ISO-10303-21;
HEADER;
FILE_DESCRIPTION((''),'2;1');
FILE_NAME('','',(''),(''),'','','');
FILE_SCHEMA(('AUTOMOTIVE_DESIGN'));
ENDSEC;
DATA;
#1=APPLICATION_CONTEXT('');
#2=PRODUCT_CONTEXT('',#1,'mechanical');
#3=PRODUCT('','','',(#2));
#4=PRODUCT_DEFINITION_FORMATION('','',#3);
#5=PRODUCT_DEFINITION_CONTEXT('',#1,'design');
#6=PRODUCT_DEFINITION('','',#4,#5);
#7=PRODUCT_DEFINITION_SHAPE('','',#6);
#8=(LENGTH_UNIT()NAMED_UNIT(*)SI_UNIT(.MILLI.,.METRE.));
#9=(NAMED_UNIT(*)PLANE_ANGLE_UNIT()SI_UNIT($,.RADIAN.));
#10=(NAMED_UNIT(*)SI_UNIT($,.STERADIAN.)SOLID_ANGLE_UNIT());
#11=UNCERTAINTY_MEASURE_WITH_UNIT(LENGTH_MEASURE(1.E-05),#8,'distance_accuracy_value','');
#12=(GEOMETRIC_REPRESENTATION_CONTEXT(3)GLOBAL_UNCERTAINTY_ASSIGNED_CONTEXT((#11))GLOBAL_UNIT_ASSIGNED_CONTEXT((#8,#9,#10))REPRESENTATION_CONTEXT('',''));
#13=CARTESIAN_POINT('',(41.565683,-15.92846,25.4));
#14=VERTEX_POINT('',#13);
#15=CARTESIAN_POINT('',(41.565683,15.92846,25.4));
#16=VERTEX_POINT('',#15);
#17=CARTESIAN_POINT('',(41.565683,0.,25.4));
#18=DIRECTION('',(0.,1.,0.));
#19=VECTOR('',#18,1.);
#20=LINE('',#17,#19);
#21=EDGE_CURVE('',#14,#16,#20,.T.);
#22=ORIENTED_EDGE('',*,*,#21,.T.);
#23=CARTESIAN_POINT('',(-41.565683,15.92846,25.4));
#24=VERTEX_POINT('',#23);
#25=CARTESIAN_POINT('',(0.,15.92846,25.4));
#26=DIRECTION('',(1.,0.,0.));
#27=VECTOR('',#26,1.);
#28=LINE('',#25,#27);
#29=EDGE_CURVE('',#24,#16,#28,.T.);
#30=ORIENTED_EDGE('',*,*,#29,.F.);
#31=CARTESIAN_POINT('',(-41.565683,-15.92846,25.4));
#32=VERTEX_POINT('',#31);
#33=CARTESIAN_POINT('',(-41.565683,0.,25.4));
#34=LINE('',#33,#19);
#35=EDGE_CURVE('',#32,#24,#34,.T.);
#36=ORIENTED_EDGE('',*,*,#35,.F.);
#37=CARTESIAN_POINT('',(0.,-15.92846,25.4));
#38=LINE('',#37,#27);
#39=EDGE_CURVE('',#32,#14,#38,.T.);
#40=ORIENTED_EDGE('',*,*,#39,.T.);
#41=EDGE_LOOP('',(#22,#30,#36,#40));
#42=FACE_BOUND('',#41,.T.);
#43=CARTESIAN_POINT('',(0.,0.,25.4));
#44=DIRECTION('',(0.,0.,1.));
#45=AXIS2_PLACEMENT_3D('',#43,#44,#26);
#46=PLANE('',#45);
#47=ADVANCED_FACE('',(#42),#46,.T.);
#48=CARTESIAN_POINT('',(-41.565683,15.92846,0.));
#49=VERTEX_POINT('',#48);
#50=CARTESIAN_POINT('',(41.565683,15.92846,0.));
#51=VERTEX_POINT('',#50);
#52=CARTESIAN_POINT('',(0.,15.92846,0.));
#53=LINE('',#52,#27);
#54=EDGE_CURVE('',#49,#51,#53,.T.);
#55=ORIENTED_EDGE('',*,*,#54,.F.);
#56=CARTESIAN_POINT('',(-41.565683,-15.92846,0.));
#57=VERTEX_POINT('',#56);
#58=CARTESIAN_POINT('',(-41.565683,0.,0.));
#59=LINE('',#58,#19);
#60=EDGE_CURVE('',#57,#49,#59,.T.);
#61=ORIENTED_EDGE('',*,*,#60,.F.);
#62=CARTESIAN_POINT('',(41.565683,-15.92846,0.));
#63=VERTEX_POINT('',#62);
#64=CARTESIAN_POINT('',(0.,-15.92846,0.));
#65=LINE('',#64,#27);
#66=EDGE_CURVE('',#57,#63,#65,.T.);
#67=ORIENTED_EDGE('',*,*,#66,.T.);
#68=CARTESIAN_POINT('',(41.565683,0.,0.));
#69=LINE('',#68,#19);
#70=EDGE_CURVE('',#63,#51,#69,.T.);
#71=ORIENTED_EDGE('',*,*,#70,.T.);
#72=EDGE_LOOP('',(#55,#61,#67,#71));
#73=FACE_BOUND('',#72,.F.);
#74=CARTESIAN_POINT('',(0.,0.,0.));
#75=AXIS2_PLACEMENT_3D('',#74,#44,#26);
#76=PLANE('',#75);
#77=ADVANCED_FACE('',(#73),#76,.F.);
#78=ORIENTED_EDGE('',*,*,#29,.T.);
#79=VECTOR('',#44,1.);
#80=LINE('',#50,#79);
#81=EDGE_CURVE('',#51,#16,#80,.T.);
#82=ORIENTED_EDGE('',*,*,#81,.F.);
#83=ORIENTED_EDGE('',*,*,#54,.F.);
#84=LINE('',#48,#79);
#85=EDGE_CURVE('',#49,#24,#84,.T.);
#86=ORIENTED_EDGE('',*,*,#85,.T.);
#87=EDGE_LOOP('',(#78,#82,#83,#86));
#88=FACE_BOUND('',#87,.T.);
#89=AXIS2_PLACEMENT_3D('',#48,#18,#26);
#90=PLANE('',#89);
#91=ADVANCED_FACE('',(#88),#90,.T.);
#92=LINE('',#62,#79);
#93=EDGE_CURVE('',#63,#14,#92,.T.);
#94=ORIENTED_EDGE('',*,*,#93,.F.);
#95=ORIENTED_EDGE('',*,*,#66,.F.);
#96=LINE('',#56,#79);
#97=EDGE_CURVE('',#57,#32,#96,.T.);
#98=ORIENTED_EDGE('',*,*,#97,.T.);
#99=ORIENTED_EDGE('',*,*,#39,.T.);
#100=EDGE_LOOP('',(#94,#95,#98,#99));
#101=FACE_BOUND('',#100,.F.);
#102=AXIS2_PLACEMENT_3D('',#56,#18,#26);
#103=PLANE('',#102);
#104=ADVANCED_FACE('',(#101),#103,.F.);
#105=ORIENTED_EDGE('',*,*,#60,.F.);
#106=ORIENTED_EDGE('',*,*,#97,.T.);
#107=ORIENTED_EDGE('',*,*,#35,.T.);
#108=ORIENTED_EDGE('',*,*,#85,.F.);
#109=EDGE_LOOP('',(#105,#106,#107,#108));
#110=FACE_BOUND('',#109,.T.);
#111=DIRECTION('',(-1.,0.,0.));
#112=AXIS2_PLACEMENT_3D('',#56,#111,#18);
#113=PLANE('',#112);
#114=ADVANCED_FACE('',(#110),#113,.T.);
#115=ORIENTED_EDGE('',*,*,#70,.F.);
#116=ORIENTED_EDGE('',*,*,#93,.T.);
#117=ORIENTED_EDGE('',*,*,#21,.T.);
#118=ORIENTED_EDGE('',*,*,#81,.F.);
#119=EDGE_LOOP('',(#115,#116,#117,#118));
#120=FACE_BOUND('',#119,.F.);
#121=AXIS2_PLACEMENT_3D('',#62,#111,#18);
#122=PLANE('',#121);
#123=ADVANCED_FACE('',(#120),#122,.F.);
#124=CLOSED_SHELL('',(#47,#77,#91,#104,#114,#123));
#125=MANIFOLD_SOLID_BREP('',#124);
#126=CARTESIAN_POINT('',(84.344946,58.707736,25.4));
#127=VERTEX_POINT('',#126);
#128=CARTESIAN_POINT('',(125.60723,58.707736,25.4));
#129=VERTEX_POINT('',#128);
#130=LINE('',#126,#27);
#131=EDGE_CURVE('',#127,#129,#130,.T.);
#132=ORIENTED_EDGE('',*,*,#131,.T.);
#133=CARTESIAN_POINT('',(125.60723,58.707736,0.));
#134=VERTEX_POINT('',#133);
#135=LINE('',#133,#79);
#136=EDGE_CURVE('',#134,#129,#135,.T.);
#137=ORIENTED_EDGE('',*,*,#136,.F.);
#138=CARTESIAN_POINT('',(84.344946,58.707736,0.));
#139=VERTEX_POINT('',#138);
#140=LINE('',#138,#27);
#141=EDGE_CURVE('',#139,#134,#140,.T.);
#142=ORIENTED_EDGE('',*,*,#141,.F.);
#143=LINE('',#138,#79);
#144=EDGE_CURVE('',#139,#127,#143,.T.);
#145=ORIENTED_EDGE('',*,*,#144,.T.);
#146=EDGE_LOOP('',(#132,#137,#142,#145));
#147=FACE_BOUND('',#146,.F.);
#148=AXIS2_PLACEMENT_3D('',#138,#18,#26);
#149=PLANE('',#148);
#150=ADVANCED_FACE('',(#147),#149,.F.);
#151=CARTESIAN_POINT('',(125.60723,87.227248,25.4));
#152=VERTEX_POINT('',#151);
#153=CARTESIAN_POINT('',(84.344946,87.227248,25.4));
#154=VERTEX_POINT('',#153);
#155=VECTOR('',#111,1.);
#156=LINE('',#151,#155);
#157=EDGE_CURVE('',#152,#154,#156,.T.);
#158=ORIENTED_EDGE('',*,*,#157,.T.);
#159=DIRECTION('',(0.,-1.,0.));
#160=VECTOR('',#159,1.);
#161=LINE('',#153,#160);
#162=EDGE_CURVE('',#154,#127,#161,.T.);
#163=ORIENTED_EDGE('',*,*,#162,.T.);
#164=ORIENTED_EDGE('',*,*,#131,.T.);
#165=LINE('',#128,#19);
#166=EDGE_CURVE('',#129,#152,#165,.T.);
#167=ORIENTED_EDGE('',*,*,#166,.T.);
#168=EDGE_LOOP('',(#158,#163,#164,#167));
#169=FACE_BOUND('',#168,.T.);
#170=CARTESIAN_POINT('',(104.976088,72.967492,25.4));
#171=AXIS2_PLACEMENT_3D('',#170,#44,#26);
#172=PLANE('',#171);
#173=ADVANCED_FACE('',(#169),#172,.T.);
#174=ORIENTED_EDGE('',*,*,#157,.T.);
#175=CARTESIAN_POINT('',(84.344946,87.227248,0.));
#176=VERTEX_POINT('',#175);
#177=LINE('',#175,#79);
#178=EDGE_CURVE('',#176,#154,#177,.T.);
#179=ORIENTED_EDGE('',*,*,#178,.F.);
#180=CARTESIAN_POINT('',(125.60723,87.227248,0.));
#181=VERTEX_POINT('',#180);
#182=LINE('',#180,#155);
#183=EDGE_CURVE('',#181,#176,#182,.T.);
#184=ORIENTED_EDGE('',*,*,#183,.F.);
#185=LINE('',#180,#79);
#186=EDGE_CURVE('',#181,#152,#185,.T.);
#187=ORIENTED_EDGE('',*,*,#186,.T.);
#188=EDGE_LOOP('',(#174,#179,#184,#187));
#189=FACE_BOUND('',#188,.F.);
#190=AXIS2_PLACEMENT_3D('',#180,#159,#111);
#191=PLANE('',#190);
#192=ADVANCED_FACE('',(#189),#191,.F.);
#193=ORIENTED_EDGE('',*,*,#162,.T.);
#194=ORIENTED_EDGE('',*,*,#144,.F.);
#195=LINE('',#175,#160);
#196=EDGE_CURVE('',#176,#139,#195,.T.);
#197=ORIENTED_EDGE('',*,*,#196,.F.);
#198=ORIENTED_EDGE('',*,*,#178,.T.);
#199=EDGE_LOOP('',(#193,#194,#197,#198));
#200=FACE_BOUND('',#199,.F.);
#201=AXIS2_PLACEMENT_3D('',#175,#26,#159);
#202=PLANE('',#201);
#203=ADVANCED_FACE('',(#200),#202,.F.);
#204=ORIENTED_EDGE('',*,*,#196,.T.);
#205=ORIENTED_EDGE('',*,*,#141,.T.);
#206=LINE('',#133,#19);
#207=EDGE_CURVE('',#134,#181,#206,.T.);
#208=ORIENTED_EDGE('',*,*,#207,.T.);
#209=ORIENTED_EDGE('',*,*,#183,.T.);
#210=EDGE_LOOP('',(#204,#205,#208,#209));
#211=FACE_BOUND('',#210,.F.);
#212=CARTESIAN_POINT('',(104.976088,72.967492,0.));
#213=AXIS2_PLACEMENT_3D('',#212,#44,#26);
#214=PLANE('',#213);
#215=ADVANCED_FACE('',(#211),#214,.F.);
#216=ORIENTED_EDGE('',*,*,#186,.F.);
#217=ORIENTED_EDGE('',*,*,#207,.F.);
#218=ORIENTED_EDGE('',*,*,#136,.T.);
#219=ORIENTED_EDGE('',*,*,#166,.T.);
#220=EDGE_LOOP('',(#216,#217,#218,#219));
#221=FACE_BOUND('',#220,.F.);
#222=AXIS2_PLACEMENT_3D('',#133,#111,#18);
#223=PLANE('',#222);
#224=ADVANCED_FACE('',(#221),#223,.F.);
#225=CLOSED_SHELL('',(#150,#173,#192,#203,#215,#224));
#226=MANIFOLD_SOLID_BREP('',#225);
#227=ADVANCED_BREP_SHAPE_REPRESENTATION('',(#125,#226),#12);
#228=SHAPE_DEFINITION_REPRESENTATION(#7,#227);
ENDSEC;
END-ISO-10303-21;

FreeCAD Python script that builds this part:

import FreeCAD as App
import Part
import Sketcher

V = App.Vector
Q = App.Units.Quantity

doc = App.newDocument("Part")
body = doc.addObject("PartDesign::Body", "Body")
body.AllowCompound = True

# Sketch on XY plane
sketch1 = body.newObject("Sketcher::SketchObject", "Sketch")
sketch1.AttachmentSupport = (doc.getObject("XY_Plane"), [""])
sketch1.MapMode = "FlatFace"
sketch1.addGeometry([
    Part.LineSegment(V(84, 87, 0), V(84, 59, 0)),  # 0
    Part.LineSegment(V(84, 59, 0), V(126, 59, 0)),  # 1
    Part.LineSegment(V(126, 59, 0), V(126, 87, 0)),  # 2
    Part.LineSegment(V(126, 87, 0), V(84, 87, 0)),  # 3
    Part.LineSegment(V(-42, 16, 0), V(-42, -16, 0)),  # 4
    Part.LineSegment(V(-42, -16, 0), V(42, -16, 0)),  # 5
    Part.LineSegment(V(42, -16, 0), V(42, 16, 0)),  # 6
    Part.LineSegment(V(42, 16, 0), V(-42, 16, 0)),  # 7
], False)
sketch1.addConstraint([
    Sketcher.Constraint("Coincident", 0, 2, 1, 1),
    Sketcher.Constraint("Coincident", 1, 2, 2, 1),
    Sketcher.Constraint("Coincident", 2, 2, 3, 1),
    Sketcher.Constraint("Coincident", 3, 2, 0, 1),
    Sketcher.Constraint("Coincident", 4, 2, 5, 1),
    Sketcher.Constraint("Coincident", 5, 2, 6, 1),
    Sketcher.Constraint("Coincident", 6, 2, 7, 1),
    Sketcher.Constraint("Coincident", 7, 2, 4, 1),
    Sketcher.Constraint("Vertical", 0),
    Sketcher.Constraint("Horizontal", 1),
    Sketcher.Constraint("Vertical", 2),
    Sketcher.Constraint("Horizontal", 3),
    Sketcher.Constraint("Vertical", 4),
    Sketcher.Constraint("Horizontal", 5),
    Sketcher.Constraint("Vertical", 6),
    Sketcher.Constraint("Horizontal", 7),
    Sketcher.Constraint("Symmetric", 4, 2, 6, 2, -1, 1),
    Sketcher.Constraint("DistanceY", 4, 2, 4, 1, 31.85692),
    Sketcher.Constraint("DistanceX", 1, 1, 1, 2, 41.262284),
    Sketcher.Constraint("DistanceX", 5, 1, 5, 2, 83.131366),
    Sketcher.Constraint("DistanceY", 0, 2, 0, 1, 28.519512),
    Sketcher.Constraint("DistanceX", -1, 1, 1, 2, 125.60723),
    Sketcher.Constraint("DistanceY", -1, 1, 2, 2, 87.227248),
])
pad1 = body.newObject("PartDesign::Pad", "Pad")
pad1.Profile = sketch1
pad1.Length = Q("1 in")

doc.recompute()
